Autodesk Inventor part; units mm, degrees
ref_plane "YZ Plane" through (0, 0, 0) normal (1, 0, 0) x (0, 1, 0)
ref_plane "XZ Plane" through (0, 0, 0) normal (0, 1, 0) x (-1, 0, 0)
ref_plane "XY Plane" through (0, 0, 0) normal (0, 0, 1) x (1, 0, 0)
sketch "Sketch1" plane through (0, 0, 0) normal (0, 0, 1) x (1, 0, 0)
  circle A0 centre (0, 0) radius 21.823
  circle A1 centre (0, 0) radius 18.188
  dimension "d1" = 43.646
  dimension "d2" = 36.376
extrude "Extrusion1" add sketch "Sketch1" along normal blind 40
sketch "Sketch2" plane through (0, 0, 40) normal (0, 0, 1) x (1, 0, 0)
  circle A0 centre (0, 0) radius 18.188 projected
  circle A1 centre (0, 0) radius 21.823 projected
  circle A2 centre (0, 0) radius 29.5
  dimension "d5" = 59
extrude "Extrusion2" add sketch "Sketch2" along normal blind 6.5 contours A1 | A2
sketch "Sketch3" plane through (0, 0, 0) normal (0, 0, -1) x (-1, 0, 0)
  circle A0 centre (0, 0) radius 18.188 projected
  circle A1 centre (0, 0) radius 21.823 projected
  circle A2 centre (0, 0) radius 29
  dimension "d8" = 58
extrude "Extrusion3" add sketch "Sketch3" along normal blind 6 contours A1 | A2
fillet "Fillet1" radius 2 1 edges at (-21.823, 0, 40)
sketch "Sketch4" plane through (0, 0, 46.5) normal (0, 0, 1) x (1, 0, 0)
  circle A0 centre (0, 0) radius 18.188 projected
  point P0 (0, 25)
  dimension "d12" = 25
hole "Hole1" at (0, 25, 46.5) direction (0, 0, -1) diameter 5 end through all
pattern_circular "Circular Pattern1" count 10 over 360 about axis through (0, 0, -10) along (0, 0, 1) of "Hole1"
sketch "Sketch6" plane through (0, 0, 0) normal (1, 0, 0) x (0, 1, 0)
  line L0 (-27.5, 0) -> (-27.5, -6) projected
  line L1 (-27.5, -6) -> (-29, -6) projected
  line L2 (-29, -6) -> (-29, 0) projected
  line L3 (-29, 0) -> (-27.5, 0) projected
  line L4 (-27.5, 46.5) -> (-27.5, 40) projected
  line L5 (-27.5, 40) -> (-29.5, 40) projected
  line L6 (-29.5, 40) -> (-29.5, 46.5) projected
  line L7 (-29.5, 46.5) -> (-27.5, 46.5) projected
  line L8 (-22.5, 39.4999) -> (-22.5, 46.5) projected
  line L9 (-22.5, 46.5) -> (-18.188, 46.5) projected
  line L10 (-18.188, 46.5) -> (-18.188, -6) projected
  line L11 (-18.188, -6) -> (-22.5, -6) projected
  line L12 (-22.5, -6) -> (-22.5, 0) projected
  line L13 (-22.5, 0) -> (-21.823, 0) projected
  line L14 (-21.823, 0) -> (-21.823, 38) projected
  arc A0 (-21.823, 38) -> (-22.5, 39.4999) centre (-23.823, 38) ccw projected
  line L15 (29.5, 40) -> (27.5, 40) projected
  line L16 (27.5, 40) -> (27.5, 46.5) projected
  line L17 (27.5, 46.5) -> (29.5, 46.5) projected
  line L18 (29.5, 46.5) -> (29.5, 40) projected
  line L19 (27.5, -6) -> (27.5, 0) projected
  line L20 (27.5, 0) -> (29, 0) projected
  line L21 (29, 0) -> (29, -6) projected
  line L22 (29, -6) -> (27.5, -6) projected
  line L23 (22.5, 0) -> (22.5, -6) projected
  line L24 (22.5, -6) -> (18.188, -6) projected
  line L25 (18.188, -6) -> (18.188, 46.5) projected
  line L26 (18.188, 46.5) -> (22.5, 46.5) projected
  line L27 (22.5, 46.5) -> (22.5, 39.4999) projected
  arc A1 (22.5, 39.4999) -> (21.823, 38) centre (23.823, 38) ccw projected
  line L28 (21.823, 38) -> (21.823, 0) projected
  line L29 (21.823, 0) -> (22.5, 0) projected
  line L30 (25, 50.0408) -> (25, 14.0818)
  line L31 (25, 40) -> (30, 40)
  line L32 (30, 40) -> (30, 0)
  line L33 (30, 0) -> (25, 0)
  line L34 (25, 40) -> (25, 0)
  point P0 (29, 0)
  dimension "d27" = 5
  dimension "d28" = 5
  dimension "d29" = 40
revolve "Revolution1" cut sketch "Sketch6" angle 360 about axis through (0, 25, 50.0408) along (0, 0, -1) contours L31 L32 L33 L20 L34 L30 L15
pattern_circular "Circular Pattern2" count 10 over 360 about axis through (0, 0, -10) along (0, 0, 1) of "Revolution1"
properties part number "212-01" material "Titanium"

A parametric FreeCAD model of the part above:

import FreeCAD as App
import Part
import Sketcher


def edges_at(feature, points):
    """Names of the edges that pass closest to the given points."""
    edges = feature.Shape.Edges
    near = lambda p: min(range(len(edges)), key=lambda i: edges[i].distToShape(Part.Vertex(*p))[0])
    return sorted({f"Edge{near(p) + 1}" for p in points})


def add_polygon(sketch, points):
    """Adds a closed chain of lines whose ends are joined by coincident constraints."""
    first, n = sketch.GeometryCount, len(points)
    for a, b in zip(points, points[1:] + points[:1]):
        sketch.addGeometry(Part.LineSegment(App.Vector(*a, 0), App.Vector(*b, 0)), False)
    for i in range(n):
        sketch.addConstraint(Sketcher.Constraint("Coincident", first + i, 2, first + (i + 1) % n, 1))

doc = App.newDocument("Part")
body = doc.addObject("PartDesign::Body", "Body")

sketch1 = doc.addObject("Sketcher::SketchObject", "Sketch")
body.addObject(sketch1)
sketch1.AttachmentSupport = (doc.XY_Plane, [""])
sketch1.MapMode = "FlatFace"
sketch1.addGeometry([
    Part.Circle(App.Vector(0, 0, 0), App.Vector(0, 0, 1), 22),
    Part.Circle(App.Vector(0, 0, 0), App.Vector(0, 0, 1), 18),
], False)
sketch1.addConstraint([
    Sketcher.Constraint("Coincident", 0, 3, -1, 1),
    Sketcher.Constraint("Coincident", 1, 3, -1, 1),
    Sketcher.Constraint("Diameter", 0, 43.646),
    Sketcher.Constraint("Diameter", 1, 36.376),
])
pad1 = doc.addObject("PartDesign::Pad", "Pad")
body.addObject(pad1)
pad1.Profile = sketch1
pad1.Length = 40

sketch2 = doc.addObject("Sketcher::SketchObject", "Sketch001")
body.addObject(sketch2)
sketch2.AttachmentSupport = (doc.XY_Plane, [""])
sketch2.MapMode = "FlatFace"
sketch2.AttachmentOffset = App.Placement(App.Vector(0, 0, 40), App.Rotation())
sketch2.addGeometry([
    Part.Circle(App.Vector(0, 0, 0), App.Vector(0, 0, 1), 30),
    Part.Circle(App.Vector(0, 0, 0), App.Vector(0, 0, 1), 18),
], False)
sketch2.addConstraint([
    Sketcher.Constraint("Coincident", 0, 3, -1, 1),
    Sketcher.Constraint("Coincident", 1, 3, -1, 1),
    Sketcher.Constraint("Diameter", 0, 59.0),
    Sketcher.Constraint("Diameter", 1, 36.376),
])
pad2 = doc.addObject("PartDesign::Pad", "Pad001")
body.addObject(pad2)
pad2.Profile = sketch2
pad2.Length = 6.5

sketch3 = doc.addObject("Sketcher::SketchObject", "Sketch002")
body.addObject(sketch3)
sketch3.AttachmentSupport = (doc.XY_Plane, [""])
sketch3.MapMode = "FlatFace"
sketch3.addGeometry([
    Part.Circle(App.Vector(0, 0, 0), App.Vector(0, 0, 1), 29),
    Part.Circle(App.Vector(0, 0, 0), App.Vector(0, 0, 1), 18),
], False)
sketch3.addConstraint([
    Sketcher.Constraint("Coincident", 0, 3, -1, 1),
    Sketcher.Constraint("Coincident", 1, 3, -1, 1),
    Sketcher.Constraint("Diameter", 0, 58.0),
    Sketcher.Constraint("Diameter", 1, 36.376),
])
pad3 = doc.addObject("PartDesign::Pad", "Pad002")
body.addObject(pad3)
pad3.Profile = sketch3
pad3.Length = 6
pad3.Reversed = True
doc.recompute()

fillet = doc.addObject("PartDesign::Fillet", "Fillet")
body.addObject(fillet)
fillet.Base = (pad3, edges_at(pad3, [(-21.823, 0, 40)]))
fillet.Radius = 2

sketch4 = doc.addObject("Sketcher::SketchObject", "Sketch003")
body.addObject(sketch4)
sketch4.AttachmentSupport = (doc.XY_Plane, [""])
sketch4.MapMode = "FlatFace"
sketch4.AttachmentOffset = App.Placement(App.Vector(0, 0, 46.5), App.Rotation())
sketch4.addGeometry(Part.Circle(App.Vector(0, 25, 0), App.Vector(0, 0, 1), 2.5), False)
sketch4.addConstraint([
    Sketcher.Constraint("PointOnObject", 0, 3, -2),
    Sketcher.Constraint("Diameter", 0, 5.0),
    Sketcher.Constraint("DistanceY", -1, 1, 0, 3, 25.0),
])
doc.recompute()
hole = doc.addObject("PartDesign::Hole", "Hole")
body.addObject(hole)
hole.Profile = sketch4
hole.ThreadType = "None"
hole.Diameter = 5
hole.DepthType = "ThroughAll"
doc.recompute()

polarpattern = doc.addObject("PartDesign::PolarPattern", "PolarPattern")
body.addObject(polarpattern)
polarpattern.Originals = [hole]
polarpattern.Axis = (doc.Z_Axis, [""])
polarpattern.Angle = 360
polarpattern.Occurrences = 10
body.Tip = polarpattern

sketch5 = doc.addObject("Sketcher::SketchObject", "Sketch004")
body.addObject(sketch5)
sketch5.AttachmentSupport = (doc.YZ_Plane, [""])
sketch5.MapMode = "FlatFace"
add_polygon(sketch5, [(30, 40), (25, 40), (25, 0), (30, 0)])
sketch5.addGeometry(Part.LineSegment(App.Vector(25, 40, 0), App.Vector(25, 0, 0)), True)
sketch5.addConstraint([
    Sketcher.Constraint("Horizontal", 0),
    Sketcher.Constraint("Vertical", 1),
    Sketcher.Constraint("Horizontal", 2),
    Sketcher.Constraint("Vertical", 3),
    Sketcher.Constraint("Vertical", 4),
    Sketcher.Constraint("Coincident", 4, 1, 0, 2),
    Sketcher.Constraint("PointOnObject", 1, 2, -1),
    Sketcher.Constraint("PointOnObject", 4, 2, -1),
    Sketcher.Constraint("DistanceX", 0, 2, 0, 1, 5.0),
    Sketcher.Constraint("DistanceY", 1, 2, 1, 1, 40.0),
    Sketcher.Constraint("DistanceX", -1, 1, 0, 2, 25.0),
])
groove = doc.addObject("PartDesign::Groove", "Groove")
body.addObject(groove)
groove.Profile = sketch5
groove.ReferenceAxis = (sketch5, ["Axis0"])
groove.Angle = 360
doc.recompute()

polarpattern2 = doc.addObject("PartDesign::PolarPattern", "PolarPattern001")
body.addObject(polarpattern2)
polarpattern2.Originals = [groove]
polarpattern2.Axis = (doc.Z_Axis, [""])
polarpattern2.Angle = 360
polarpattern2.Occurrences = 10
body.Tip = polarpattern2

doc.recompute()
